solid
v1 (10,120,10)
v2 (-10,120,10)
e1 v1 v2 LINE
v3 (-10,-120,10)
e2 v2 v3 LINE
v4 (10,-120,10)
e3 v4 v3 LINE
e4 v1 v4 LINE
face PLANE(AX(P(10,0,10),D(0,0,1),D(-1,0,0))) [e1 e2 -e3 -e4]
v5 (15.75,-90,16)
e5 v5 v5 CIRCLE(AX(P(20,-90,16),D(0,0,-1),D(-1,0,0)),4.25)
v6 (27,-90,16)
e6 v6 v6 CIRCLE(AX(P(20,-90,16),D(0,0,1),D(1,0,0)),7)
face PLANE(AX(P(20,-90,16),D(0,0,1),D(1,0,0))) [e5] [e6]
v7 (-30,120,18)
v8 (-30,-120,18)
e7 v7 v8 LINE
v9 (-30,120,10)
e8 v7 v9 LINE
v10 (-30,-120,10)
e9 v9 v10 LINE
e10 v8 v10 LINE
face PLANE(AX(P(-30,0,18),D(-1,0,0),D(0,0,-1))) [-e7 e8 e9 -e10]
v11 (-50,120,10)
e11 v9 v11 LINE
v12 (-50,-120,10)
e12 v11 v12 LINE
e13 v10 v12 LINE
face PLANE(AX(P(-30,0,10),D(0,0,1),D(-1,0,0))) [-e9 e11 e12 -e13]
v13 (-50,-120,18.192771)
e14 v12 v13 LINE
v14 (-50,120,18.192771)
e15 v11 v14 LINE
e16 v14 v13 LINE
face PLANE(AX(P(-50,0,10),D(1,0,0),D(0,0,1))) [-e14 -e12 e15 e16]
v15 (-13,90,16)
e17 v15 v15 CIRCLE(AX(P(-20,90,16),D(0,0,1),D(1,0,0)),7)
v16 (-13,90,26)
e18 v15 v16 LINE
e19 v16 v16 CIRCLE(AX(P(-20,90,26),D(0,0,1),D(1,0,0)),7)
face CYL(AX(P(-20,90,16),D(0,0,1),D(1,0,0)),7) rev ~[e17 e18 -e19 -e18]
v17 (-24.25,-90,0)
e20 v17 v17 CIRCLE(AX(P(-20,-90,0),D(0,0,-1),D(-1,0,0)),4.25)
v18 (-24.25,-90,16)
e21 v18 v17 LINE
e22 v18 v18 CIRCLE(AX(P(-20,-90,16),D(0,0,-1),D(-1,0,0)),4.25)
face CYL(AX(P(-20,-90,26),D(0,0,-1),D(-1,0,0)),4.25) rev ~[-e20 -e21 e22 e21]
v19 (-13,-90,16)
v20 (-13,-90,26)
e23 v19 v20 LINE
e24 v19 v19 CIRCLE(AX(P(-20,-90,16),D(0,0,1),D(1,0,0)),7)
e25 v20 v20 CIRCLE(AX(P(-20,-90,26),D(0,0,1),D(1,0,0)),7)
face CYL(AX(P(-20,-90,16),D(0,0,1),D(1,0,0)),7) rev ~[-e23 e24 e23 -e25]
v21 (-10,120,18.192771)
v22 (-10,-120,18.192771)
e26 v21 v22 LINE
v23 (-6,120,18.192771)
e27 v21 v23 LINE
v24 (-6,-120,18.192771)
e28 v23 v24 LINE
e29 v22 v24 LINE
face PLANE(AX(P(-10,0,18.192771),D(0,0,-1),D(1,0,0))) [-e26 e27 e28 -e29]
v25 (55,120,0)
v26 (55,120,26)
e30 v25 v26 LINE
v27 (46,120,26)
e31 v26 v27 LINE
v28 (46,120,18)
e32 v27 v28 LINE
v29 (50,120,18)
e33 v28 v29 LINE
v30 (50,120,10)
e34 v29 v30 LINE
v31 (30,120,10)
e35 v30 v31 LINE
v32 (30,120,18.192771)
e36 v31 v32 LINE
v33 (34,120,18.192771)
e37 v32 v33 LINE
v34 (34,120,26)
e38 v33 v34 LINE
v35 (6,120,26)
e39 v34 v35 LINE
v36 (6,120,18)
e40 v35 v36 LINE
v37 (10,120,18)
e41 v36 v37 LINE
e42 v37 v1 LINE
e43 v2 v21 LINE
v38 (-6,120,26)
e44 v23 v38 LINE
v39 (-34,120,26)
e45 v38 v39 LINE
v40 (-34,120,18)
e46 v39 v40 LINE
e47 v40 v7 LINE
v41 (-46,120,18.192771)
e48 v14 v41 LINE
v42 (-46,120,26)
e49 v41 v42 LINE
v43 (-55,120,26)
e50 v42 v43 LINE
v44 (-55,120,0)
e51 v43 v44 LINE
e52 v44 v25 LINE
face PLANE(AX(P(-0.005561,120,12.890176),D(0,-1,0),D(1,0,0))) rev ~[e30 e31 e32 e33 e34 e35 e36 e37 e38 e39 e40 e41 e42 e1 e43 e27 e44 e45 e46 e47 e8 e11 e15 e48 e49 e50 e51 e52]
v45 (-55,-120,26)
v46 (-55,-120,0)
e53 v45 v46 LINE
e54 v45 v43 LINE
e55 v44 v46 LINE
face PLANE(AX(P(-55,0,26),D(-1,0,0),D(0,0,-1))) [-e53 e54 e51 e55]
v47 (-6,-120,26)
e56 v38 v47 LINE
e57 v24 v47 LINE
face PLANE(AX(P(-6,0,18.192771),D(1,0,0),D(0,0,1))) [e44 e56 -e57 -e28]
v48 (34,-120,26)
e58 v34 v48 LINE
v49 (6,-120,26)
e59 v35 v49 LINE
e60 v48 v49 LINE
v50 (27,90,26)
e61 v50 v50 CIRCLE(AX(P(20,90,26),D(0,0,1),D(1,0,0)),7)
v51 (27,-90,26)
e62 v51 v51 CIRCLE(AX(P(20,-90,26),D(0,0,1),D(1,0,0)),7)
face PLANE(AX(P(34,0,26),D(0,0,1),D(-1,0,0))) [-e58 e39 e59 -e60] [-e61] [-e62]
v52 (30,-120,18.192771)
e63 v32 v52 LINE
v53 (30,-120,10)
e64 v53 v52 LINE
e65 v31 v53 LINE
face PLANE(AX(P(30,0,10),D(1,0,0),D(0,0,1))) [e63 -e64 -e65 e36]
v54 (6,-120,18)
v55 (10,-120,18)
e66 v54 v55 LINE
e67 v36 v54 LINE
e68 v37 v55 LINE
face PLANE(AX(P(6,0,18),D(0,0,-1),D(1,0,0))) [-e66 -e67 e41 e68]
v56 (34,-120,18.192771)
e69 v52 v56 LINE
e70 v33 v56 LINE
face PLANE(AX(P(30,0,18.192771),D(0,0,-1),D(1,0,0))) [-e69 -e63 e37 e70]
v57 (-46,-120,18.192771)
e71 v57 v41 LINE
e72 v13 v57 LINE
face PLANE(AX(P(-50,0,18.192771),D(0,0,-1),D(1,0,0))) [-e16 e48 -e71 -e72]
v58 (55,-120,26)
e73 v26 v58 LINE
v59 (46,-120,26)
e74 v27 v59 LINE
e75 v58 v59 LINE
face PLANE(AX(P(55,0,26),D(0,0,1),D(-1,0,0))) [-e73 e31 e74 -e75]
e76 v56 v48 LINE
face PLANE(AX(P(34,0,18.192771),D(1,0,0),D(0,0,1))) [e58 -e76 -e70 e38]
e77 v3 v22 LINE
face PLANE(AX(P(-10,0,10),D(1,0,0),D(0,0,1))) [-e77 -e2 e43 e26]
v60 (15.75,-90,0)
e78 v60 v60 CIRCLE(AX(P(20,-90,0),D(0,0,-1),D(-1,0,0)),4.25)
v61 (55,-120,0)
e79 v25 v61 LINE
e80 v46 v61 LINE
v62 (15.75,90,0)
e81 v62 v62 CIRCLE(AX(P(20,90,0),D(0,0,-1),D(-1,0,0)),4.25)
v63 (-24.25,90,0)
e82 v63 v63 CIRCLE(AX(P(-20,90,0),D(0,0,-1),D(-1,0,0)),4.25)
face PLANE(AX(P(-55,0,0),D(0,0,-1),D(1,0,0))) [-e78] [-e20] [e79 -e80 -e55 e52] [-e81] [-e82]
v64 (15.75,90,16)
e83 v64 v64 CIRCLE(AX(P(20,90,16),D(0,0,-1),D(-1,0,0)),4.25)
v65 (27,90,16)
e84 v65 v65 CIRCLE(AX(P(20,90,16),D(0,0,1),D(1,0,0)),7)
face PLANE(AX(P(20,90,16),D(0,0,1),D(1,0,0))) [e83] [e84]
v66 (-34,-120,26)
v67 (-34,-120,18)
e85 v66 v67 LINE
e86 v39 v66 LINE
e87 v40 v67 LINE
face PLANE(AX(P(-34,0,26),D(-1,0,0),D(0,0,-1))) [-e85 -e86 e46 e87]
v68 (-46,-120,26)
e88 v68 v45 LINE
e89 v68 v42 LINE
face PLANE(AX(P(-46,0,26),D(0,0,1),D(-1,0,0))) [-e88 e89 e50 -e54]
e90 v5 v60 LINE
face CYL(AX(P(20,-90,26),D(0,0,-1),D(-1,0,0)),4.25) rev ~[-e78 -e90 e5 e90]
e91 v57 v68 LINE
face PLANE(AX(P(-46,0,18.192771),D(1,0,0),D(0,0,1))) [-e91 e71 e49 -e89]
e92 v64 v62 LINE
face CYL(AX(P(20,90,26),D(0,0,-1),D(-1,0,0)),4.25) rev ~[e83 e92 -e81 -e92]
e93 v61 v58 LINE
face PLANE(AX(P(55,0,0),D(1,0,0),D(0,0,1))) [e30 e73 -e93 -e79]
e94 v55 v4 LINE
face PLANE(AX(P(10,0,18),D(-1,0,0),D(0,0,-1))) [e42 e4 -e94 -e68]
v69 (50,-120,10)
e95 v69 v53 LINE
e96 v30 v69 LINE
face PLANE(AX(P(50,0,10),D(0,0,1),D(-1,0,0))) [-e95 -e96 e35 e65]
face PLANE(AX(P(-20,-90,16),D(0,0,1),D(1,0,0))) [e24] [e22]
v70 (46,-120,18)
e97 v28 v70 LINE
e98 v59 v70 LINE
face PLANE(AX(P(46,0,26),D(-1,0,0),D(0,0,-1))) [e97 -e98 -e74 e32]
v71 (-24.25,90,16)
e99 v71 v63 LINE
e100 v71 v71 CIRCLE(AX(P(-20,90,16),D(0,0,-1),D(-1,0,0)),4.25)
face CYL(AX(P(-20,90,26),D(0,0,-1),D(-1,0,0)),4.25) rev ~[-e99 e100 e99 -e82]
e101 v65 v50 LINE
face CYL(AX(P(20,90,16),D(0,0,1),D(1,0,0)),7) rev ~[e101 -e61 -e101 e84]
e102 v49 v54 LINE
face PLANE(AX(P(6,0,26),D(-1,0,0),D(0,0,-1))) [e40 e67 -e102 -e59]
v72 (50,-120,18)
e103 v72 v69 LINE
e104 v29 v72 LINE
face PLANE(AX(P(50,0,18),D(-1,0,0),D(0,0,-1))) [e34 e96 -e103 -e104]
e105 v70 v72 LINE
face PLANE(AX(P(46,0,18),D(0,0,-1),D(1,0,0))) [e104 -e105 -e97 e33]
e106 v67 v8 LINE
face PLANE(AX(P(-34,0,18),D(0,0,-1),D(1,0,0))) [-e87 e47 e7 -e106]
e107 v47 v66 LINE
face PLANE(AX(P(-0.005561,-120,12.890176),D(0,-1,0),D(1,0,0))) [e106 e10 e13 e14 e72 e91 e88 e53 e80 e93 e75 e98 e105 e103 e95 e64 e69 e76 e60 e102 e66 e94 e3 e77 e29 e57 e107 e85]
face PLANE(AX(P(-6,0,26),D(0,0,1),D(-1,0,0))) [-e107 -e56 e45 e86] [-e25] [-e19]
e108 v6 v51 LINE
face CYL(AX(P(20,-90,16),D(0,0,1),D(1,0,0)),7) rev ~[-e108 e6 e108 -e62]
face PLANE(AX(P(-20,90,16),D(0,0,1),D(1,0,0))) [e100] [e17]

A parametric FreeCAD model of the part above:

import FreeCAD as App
import Part
import Sketcher

V = App.Vector
Q = App.Units.Quantity


def add_polygon(sketch, points):
    """Adds a closed chain of lines whose ends are joined by coincident constraints."""
    first, n = sketch.GeometryCount, len(points)
    for a, b in zip(points, points[1:] + points[:1]):
        sketch.addGeometry(Part.LineSegment(App.Vector(*a, 0), App.Vector(*b, 0)), False)
    for i in range(n):
        sketch.addConstraint(Sketcher.Constraint("Coincident", first + i, 2, first + (i + 1) % n, 1))

doc = App.newDocument("Part")
params = doc.addObject("Spreadsheet::Sheet", "Params")
for row, (alias, value) in enumerate([
    ("sketch1_width", "110 mm"),
    ("sketch1_width2", "9 mm"),
    ("sketch1_width3", "4 mm"),
    ("sketch1_width4", "20 mm"),
    ("sketch1_height", "26 mm"),
    ("pad1_length", "240 mm"),
    ("sketch2_diameter", "8.5 mm"),
    ("hole_diameter", "8.5 mm"),
    ("hole_cbore_diameter", "14 mm"),
    ("hole_cbore_depth", "10 mm"),
], start=1):
    params.set(f"A{row}", alias)
    params.set(f"B{row}", "=" + value)
    params.setAlias(f"B{row}", alias)

body = doc.addObject("PartDesign::Body", "Body")

sketch1 = body.newObject("Sketcher::SketchObject", "Sketch")
sketch1.AttachmentSupport = (doc.getObject("XZ_Plane"), [""])
sketch1.MapMode = "FlatFace"
add_polygon(sketch1, [(-55, 26), (-55, 0), (55, 0), (55, 26), (46, 26), (46, 18), (50, 18), (50, 10), (30, 10), (30, 18.2), (34, 18.2), (34, 26), (6, 26), (6, 18), (10, 18), (10, 10), (-10, 10), (-10, 18.2), (-6, 18.2), (-6, 26), (-34, 26), (-34, 18), (-30, 18), (-30, 10), (-50, 10), (-50, 18.2), (-46, 18.2), (-46, 26)])
sketch1.addConstraint(Sketcher.Constraint("Vertical", 0))
sketch1.addConstraint(Sketcher.Constraint("Horizontal", 1))
sketch1.addConstraint(Sketcher.Constraint("Vertical", 2))
sketch1.addConstraint(Sketcher.Constraint("Horizontal", 3))
sketch1.addConstraint(Sketcher.Constraint("Vertical", 4))
sketch1.addConstraint(Sketcher.Constraint("Horizontal", 5))
sketch1.addConstraint(Sketcher.Constraint("Vertical", 6))
sketch1.addConstraint(Sketcher.Constraint("Horizontal", 7))
sketch1.addConstraint(Sketcher.Constraint("Vertical", 8))
sketch1.addConstraint(Sketcher.Constraint("Horizontal", 9))
sketch1.addConstraint(Sketcher.Constraint("Vertical", 10))
sketch1.addConstraint(Sketcher.Constraint("Horizontal", 11))
sketch1.addConstraint(Sketcher.Constraint("Vertical", 12))
sketch1.addConstraint(Sketcher.Constraint("Horizontal", 13))
sketch1.addConstraint(Sketcher.Constraint("Vertical", 14))
sketch1.addConstraint(Sketcher.Constraint("Horizontal", 15))
sketch1.addConstraint(Sketcher.Constraint("Vertical", 16))
sketch1.addConstraint(Sketcher.Constraint("Horizontal", 17))
sketch1.addConstraint(Sketcher.Constraint("Vertical", 18))
sketch1.addConstraint(Sketcher.Constraint("Horizontal", 19))
sketch1.addConstraint(Sketcher.Constraint("Vertical", 20))
sketch1.addConstraint(Sketcher.Constraint("Horizontal", 21))
sketch1.addConstraint(Sketcher.Constraint("Vertical", 22))
sketch1.addConstraint(Sketcher.Constraint("Horizontal", 23))
sketch1.addConstraint(Sketcher.Constraint("Vertical", 24))
sketch1.addConstraint(Sketcher.Constraint("Horizontal", 25))
sketch1.addConstraint(Sketcher.Constraint("Vertical", 26))
sketch1.addConstraint(Sketcher.Constraint("Horizontal", 27))
sketch1.addConstraint(Sketcher.Constraint("Symmetric", 0, 2, 1, 2, -1, 1))
sketch1.addConstraint(Sketcher.Constraint("Symmetric", 11, 2, 18, 2, -2))
sketch1.addConstraint(Sketcher.Constraint("Symmetric", 7, 2, 22, 2, -2))
sketch1.addConstraint(Sketcher.Constraint("Symmetric", 3, 2, 26, 2, -2))
sketch1.addConstraint(Sketcher.Constraint("Horizontal", 3, 2, 10, 2))
sketch1.addConstraint(Sketcher.Constraint("Horizontal", 5, 2, 12, 2))
sketch1.addConstraint(Sketcher.Constraint("Horizontal", 7, 2, 14, 2))
sketch1.addConstraint(Sketcher.Constraint("Horizontal", 9, 2, 16, 2))
sketch1.addConstraint(Sketcher.Constraint("Horizontal", 13, 2, 20, 2))
sketch1.addConstraint(Sketcher.Constraint("Horizontal", 17, 2, 24, 2))
sketch1.addConstraint(Sketcher.Constraint("Equal", 5, 9))
sketch1.addConstraint(Sketcher.Constraint("Equal", 9, 13))
sketch1.addConstraint(Sketcher.Constraint("Equal", 7, 15))
sketch1.addConstraint(Sketcher.Constraint("Equal", 13, 17))
sketch1.addConstraint(Sketcher.Constraint("Equal", 11, 19))
sketch1.addConstraint(Sketcher.Constraint("Equal", 15, 23))
sketch1.addConstraint(Sketcher.Constraint("Equal", 4, 6))
sketch1.addConstraint(Sketcher.Constraint("DistanceX", 1, 1, 1, 2, Q("110 mm")))
sketch1.addConstraint(Sketcher.Constraint("DistanceX", 3, 2, 3, 1, Q("9 mm")))
sketch1.addConstraint(Sketcher.Constraint("DistanceX", 5, 1, 5, 2, Q("4 mm")))
sketch1.addConstraint(Sketcher.Constraint("DistanceX", 7, 2, 7, 1, Q("20 mm")))
sketch1.addConstraint(Sketcher.Constraint("DistanceY", 0, 2, 0, 1, Q("26 mm")))
sketch1.addConstraint(Sketcher.Constraint("DistanceY", 4, 2, 4, 1, Q("8 mm")))
sketch1.addConstraint(Sketcher.Constraint("DistanceY", 8, 1, 8, 2, Q("8.192771 mm")))
sketch1.setExpression("Constraints[73]", "Params.sketch1_width")
sketch1.setExpression("Constraints[74]", "Params.sketch1_width2")
sketch1.setExpression("Constraints[75]", "Params.sketch1_width3")
sketch1.setExpression("Constraints[76]", "Params.sketch1_width4")
sketch1.setExpression("Constraints[77]", "Params.sketch1_height")
pad1 = body.newObject("PartDesign::Pad", "Pad")
pad1.Profile = sketch1
pad1.setExpression("Length", "Params.pad1_length")
pad1.Midplane = True

sketch2 = body.newObject("Sketcher::SketchObject", "Sketch001")
sketch2.AttachmentSupport = (doc.getObject("XY_Plane"), [""])
sketch2.MapMode = "FlatFace"
sketch2.AttachmentOffset = App.Placement(V(0, 0, 26), App.Rotation())
sketch2.addGeometry(Part.Circle(V(-20, -90, 0), V(0, 0, 1), 4.2), False)
sketch2.addGeometry(Part.Circle(V(20, -90, 0), V(0, 0, 1), 4.2), False)
sketch2.addGeometry(Part.Circle(V(-20, 90, 0), V(0, 0, 1), 4.2), False)
sketch2.addGeometry(Part.Circle(V(20, 90, 0), V(0, 0, 1), 4.2), False)
sketch2.addConstraint(Sketcher.Constraint("Equal", 0, 1))
sketch2.addConstraint(Sketcher.Constraint("Equal", 1, 2))
sketch2.addConstraint(Sketcher.Constraint("Equal", 2, 3))
sketch2.addConstraint(Sketcher.Constraint("Symmetric", 1, 3, 2, 3, -1, 1))
sketch2.addConstraint(Sketcher.Constraint("Symmetric", 0, 3, 3, 3, -1, 1))
sketch2.addConstraint(Sketcher.Constraint("Symmetric", 0, 3, 1, 3, -2))
sketch2.addConstraint(Sketcher.Constraint("Diameter", 0, Q("8.5 mm")))
sketch2.addConstraint(Sketcher.Constraint("DistanceX", 0, 3, -1, 1, Q("20 mm")))
sketch2.addConstraint(Sketcher.Constraint("DistanceY", 0, 3, -1, 1, Q("90 mm")))
sketch2.setExpression("Constraints[6]", "Params.sketch2_diameter")
doc.recompute()
hole = body.newObject("PartDesign::Hole", "Hole")
hole.Profile = sketch2
hole.ThreadType = "None"
hole.setExpression("Diameter", "Params.hole_diameter")
hole.DepthType = "ThroughAll"
hole.HoleCutType = "Counterbore"
hole.setExpression("HoleCutDiameter", "Params.hole_cbore_diameter")
hole.setExpression("HoleCutDepth", "Params.hole_cbore_depth")
body2 = doc.addObject("PartDesign::Body", "Body001")
doc.recompute()

body2.BaseFeature = body
doc.recompute()
body.Visibility = False

doc.recompute()
